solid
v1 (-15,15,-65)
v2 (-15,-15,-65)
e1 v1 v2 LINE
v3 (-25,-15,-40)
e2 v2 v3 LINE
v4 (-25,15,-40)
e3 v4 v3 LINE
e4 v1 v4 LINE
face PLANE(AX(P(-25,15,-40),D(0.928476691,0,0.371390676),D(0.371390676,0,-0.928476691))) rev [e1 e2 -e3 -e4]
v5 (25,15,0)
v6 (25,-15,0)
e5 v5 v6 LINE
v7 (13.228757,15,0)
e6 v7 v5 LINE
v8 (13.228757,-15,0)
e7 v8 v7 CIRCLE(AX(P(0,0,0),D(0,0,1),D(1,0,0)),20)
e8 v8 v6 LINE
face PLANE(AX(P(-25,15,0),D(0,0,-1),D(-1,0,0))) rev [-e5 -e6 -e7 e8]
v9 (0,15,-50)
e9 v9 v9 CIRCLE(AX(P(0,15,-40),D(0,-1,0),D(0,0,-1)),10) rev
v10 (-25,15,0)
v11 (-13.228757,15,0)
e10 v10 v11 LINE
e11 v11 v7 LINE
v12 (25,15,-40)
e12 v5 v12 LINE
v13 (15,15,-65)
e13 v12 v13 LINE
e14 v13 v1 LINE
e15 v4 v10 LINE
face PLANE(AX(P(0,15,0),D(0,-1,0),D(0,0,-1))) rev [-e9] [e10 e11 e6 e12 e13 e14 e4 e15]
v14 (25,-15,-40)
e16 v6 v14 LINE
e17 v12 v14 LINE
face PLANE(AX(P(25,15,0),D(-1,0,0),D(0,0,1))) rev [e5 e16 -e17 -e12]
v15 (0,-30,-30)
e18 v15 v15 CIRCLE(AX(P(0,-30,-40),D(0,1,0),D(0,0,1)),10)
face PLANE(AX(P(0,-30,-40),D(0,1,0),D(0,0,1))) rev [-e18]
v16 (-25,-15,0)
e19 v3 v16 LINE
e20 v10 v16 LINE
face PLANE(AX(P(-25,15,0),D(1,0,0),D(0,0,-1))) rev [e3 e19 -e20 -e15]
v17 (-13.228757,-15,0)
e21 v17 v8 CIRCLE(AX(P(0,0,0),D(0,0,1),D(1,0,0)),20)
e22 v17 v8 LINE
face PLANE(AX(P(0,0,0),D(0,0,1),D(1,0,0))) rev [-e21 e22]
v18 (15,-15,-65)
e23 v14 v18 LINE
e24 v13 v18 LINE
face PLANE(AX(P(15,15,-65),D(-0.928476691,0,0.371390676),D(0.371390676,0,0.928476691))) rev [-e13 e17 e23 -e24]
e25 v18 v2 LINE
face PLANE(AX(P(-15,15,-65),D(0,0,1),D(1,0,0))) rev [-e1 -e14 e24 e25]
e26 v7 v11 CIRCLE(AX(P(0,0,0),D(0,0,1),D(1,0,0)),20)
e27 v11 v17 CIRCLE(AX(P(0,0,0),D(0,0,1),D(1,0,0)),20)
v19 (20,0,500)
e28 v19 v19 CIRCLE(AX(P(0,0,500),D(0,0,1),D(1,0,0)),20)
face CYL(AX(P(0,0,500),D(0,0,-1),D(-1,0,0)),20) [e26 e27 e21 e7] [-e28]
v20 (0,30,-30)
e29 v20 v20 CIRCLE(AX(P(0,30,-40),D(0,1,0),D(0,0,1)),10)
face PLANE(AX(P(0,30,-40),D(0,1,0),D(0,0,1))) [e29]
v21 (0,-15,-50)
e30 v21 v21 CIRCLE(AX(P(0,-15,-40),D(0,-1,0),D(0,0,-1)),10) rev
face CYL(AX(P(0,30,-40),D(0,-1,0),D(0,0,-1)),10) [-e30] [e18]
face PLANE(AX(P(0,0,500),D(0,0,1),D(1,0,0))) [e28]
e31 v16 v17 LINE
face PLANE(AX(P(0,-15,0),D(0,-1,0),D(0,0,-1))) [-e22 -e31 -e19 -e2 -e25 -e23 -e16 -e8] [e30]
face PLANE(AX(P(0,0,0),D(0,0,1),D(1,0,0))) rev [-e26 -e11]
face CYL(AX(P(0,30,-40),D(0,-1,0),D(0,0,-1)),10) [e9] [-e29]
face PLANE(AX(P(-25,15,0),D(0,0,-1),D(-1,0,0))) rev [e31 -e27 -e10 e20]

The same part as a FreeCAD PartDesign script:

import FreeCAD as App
import Part
import Sketcher

V = App.Vector
Q = App.Units.Quantity

doc = App.newDocument("Part")
body = doc.addObject("PartDesign::Body", "Body")

# Sketch on XY plane
sketch1 = body.newObject("Sketcher::SketchObject", "Sketch")
sketch1.AttachmentSupport = (doc.getObject("XY_Plane"), [""])
sketch1.MapMode = "FlatFace"
sketch1.addGeometry(Part.Circle(V(0, 0, 0), V(0, 0, 1), 20), False)
sketch1.addConstraint(Sketcher.Constraint("Coincident", 0, 3, -1, 1))
sketch1.addConstraint(Sketcher.Constraint("Diameter", 0, Q("40 mm")))
pad1 = body.newObject("PartDesign::Pad", "Pad")
pad1.Profile = sketch1
pad1.Length = 500

# Sketch on XZ plane
sketch2 = body.newObject("Sketcher::SketchObject", "Sketch001")
sketch2.AttachmentSupport = (doc.getObject("XZ_Plane"), [""])
sketch2.MapMode = "FlatFace"
sketch2.addGeometry(Part.LineSegment(V(-15, -65, 0), V(-25, -40, 0)), False)
sketch2.addGeometry(Part.LineSegment(V(-25, -40, 0), V(-25, 0, 0)), False)
sketch2.addGeometry(Part.LineSegment(V(-25, 0, 0), V(25, 0, 0)), False)
sketch2.addGeometry(Part.LineSegment(V(25, 0, 0), V(25, -40, 0)), False)
sketch2.addGeometry(Part.LineSegment(V(25, -40, 0), V(15, -65, 0)), False)
sketch2.addGeometry(Part.LineSegment(V(15, -65, 0), V(-15, -65, 0)), False)
sketch2.addConstraint(Sketcher.Constraint("Coincident", 0, 2, 1, 1))
sketch2.addConstraint(Sketcher.Constraint("Coincident", 1, 2, 2, 1))
sketch2.addConstraint(Sketcher.Constraint("Coincident", 2, 2, 3, 1))
sketch2.addConstraint(Sketcher.Constraint("Coincident", 3, 2, 4, 1))
sketch2.addConstraint(Sketcher.Constraint("Coincident", 4, 2, 5, 1))
sketch2.addConstraint(Sketcher.Constraint("Coincident", 5, 2, 0, 1))
sketch2.addConstraint(Sketcher.Constraint("Vertical", 1))
sketch2.addConstraint(Sketcher.Constraint("Horizontal", 2))
sketch2.addConstraint(Sketcher.Constraint("Vertical", 3))
sketch2.addConstraint(Sketcher.Constraint("Horizontal", 5))
sketch2.addConstraint(Sketcher.Constraint("Symmetric", 1, 2, 2, 2, -1, 1))
sketch2.addConstraint(Sketcher.Constraint("Horizontal", 0, 2, 3, 2))
sketch2.addConstraint(Sketcher.Constraint("Equal", 0, 4))
sketch2.addConstraint(Sketcher.Constraint("DistanceX", 2, 1, 2, 2, Q("50 mm")))
sketch2.addConstraint(Sketcher.Constraint("DistanceX", 5, 2, 5, 1, Q("30 mm")))
sketch2.addConstraint(Sketcher.Constraint("DistanceY", 1, 1, 1, 2, Q("40 mm")))
sketch2.addConstraint(Sketcher.Constraint("DistanceY", 4, 2, -1, 1, Q("65 mm")))
pad2 = body.newObject("PartDesign::Pad", "Pad001")
pad2.Profile = sketch2
pad2.Length = 30
pad2.Midplane = True

# Sketch on XZ plane
sketch3 = body.newObject("Sketcher::SketchObject", "Sketch002")
sketch3.AttachmentSupport = (doc.getObject("XZ_Plane"), [""])
sketch3.MapMode = "FlatFace"
sketch3.addGeometry(Part.Circle(V(0, -40, 0), V(0, 0, 1), 10), False)
sketch3.addConstraint(Sketcher.Constraint("PointOnObject", 0, 3, -2))
sketch3.addConstraint(Sketcher.Constraint("Diameter", 0, Q("20 mm")))
sketch3.addConstraint(Sketcher.Constraint("DistanceY", 0, 3, -1, 1, Q("40 mm")))
pad3 = body.newObject("PartDesign::Pad", "Pad002")
pad3.Profile = sketch3
pad3.Length = 60
pad3.Midplane = True

doc.recompute()
